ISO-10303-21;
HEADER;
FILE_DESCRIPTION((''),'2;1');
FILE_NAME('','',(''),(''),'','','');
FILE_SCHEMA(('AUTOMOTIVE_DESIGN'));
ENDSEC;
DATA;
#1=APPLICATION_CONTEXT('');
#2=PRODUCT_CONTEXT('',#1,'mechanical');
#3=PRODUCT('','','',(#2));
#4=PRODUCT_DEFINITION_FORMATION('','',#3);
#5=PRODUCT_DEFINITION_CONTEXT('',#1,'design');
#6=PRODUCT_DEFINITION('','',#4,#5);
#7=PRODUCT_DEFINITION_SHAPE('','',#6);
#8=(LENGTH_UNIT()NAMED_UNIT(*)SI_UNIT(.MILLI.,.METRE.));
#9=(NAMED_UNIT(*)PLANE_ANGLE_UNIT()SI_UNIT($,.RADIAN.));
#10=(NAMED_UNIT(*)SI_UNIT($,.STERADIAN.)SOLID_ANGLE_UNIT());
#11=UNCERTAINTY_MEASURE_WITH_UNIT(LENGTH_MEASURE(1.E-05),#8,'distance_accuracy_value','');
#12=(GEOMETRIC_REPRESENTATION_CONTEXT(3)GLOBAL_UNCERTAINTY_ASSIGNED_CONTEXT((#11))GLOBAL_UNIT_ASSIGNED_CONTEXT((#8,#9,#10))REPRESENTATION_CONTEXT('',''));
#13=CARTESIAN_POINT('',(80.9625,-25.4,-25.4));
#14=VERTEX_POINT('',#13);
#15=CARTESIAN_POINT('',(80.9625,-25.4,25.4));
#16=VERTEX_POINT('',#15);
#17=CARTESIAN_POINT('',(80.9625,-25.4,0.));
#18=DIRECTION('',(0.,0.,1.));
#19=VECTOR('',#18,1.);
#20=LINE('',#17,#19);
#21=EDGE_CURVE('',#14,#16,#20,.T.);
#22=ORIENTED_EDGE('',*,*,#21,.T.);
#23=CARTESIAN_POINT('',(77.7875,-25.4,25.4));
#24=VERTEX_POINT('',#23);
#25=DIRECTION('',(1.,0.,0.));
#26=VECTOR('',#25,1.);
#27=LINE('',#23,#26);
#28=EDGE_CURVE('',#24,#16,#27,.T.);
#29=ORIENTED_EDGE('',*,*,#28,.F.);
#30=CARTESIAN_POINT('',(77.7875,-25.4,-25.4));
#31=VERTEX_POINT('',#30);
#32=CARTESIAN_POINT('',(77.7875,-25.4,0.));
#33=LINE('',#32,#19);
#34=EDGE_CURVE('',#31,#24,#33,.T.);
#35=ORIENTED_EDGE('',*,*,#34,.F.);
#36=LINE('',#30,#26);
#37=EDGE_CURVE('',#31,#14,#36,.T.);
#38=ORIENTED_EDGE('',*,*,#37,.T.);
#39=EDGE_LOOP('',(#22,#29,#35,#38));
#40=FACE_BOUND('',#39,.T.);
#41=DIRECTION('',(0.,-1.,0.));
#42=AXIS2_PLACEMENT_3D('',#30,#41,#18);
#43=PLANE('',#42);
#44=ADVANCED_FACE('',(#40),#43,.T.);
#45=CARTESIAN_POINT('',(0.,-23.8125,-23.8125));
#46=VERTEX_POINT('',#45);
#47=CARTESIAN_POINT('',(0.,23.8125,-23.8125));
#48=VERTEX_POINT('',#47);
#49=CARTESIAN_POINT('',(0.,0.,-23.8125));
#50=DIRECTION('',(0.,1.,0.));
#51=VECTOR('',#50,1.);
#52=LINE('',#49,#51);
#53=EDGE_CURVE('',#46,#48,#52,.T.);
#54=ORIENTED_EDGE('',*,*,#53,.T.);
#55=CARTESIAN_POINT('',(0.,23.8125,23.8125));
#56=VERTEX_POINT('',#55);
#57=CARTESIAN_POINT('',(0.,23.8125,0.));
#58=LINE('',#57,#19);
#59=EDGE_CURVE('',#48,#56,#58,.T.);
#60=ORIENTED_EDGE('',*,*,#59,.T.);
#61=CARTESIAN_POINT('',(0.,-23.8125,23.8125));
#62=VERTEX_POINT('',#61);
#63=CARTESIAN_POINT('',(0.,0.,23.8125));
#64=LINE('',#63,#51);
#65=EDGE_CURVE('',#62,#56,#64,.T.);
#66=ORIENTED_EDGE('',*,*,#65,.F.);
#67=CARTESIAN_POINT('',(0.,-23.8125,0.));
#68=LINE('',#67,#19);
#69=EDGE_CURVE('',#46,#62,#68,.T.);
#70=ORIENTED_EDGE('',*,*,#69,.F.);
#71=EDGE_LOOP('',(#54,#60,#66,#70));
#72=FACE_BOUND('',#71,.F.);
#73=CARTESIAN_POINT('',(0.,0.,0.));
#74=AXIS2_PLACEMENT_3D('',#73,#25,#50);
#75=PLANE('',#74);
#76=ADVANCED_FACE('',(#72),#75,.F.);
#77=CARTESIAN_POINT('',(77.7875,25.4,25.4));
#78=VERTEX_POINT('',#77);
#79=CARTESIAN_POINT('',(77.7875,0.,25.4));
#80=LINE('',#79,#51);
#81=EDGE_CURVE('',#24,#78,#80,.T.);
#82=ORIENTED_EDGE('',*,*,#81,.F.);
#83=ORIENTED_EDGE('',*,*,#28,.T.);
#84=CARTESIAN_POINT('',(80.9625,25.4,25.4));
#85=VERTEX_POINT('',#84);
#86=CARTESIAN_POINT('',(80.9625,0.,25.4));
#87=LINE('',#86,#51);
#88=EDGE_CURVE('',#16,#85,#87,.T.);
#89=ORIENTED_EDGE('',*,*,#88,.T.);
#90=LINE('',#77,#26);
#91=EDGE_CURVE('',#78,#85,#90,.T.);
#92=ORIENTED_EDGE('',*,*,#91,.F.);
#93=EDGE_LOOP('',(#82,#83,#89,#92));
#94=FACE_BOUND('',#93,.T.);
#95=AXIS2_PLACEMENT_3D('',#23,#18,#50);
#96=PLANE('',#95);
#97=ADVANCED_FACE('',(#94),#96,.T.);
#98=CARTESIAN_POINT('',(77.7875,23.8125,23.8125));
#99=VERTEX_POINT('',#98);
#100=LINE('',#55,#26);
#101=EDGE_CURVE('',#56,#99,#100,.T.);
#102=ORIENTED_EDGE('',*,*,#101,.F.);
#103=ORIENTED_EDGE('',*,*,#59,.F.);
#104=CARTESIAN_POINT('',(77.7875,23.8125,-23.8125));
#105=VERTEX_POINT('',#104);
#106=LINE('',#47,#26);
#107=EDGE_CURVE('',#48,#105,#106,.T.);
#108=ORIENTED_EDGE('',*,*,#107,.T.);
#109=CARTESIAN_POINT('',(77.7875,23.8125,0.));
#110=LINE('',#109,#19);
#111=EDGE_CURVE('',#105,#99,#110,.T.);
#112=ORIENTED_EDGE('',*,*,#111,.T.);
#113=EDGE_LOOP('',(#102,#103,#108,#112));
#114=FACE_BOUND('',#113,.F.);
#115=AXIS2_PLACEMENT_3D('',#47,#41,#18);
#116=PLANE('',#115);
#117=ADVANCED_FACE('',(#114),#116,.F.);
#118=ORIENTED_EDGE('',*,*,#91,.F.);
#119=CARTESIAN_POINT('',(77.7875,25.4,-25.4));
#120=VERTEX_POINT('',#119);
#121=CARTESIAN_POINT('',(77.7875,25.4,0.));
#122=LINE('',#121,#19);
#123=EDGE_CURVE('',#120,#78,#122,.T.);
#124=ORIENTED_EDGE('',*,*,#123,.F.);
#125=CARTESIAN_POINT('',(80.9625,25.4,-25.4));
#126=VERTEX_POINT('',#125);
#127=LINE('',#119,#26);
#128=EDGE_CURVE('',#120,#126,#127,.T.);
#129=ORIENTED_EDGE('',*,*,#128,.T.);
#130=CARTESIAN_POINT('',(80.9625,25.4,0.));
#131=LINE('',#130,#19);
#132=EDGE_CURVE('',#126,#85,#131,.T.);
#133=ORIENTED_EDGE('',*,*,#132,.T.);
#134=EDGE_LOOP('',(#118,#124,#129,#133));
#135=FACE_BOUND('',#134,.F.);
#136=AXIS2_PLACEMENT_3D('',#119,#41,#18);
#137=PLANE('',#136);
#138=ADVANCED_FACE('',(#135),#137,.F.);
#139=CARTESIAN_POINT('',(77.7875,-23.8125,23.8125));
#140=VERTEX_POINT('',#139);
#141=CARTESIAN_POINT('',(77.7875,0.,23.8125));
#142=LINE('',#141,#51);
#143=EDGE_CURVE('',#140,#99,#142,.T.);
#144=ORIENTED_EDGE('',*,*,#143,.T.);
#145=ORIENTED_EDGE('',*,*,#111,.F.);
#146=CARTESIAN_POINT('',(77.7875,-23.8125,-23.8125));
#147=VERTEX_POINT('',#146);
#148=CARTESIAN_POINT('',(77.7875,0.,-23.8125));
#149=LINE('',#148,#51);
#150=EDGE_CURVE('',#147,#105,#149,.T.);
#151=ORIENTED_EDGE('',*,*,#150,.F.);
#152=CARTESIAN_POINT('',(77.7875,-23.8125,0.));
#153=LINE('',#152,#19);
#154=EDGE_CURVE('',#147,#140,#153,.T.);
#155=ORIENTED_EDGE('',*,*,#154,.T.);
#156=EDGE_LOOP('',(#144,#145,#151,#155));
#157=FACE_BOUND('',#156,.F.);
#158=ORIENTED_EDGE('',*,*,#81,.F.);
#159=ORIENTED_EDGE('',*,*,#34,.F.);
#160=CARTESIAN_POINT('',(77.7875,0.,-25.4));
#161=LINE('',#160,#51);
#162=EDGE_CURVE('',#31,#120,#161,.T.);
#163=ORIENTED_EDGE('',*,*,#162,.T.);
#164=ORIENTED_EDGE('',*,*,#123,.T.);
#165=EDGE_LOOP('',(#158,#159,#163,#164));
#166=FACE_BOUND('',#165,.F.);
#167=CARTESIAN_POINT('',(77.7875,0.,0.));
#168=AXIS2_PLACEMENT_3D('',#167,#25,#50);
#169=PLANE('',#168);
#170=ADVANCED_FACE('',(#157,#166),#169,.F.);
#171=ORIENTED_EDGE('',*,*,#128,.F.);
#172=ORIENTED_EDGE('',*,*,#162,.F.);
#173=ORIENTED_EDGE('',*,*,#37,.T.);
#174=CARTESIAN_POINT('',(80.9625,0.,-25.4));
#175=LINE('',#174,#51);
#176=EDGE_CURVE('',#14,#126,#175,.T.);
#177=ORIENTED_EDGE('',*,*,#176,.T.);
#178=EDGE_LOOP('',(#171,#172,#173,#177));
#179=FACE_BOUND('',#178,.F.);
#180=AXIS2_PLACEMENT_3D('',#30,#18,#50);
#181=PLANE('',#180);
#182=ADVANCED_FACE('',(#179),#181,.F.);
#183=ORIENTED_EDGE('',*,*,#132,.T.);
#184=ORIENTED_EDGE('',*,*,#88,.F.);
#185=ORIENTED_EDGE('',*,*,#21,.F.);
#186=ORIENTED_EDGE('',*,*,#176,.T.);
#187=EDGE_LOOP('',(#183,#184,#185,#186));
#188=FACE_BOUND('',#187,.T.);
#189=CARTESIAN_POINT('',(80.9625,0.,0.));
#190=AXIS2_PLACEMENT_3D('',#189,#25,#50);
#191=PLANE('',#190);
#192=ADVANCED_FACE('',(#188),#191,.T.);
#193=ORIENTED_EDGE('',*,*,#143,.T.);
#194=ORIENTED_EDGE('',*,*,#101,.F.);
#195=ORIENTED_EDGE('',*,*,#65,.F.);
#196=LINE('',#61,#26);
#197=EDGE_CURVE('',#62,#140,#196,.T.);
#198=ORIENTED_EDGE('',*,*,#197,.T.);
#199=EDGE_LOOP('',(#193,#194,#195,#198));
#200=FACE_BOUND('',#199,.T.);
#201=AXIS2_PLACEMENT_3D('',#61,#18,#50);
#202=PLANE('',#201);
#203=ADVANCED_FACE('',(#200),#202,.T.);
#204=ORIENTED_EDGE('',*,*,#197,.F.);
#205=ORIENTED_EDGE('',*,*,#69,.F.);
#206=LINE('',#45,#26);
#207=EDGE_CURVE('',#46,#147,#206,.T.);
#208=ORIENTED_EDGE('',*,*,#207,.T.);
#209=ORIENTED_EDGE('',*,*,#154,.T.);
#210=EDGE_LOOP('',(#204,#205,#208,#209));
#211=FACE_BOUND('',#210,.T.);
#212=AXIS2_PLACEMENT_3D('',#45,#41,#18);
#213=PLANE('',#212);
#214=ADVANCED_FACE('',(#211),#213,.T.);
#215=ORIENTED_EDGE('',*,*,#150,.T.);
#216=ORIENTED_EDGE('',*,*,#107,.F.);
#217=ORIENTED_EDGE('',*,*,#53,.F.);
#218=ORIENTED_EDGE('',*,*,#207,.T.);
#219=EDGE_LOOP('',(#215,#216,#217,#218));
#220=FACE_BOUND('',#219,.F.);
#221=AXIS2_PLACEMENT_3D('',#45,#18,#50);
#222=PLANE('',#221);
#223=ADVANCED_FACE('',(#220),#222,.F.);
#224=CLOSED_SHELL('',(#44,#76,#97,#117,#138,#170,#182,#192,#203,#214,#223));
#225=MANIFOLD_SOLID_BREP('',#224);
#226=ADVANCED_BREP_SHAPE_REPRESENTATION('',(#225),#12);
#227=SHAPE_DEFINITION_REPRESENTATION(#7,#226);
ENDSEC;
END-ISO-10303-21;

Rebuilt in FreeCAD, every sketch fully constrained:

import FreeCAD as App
import Part
import Sketcher
from FreeCAD import Vector
Q = App.Units.Quantity


def add_polygon(sketch, points):
    """Adds a closed chain of lines whose ends are joined by coincident constraints."""
    first, n = sketch.GeometryCount, len(points)
    for a, b in zip(points, points[1:] + points[:1]):
        sketch.addGeometry(Part.LineSegment(App.Vector(*a, 0), App.Vector(*b, 0)), False)
    for i in range(n):
        sketch.addConstraint(Sketcher.Constraint("Coincident", first + i, 2, first + (i + 1) % n, 1))

doc = App.newDocument("Part")
body = doc.addObject("PartDesign::Body", "Body")

sketch1 = doc.addObject("Sketcher::SketchObject", "Sketch")
body.addObject(sketch1)
sketch1.AttachmentSupport = (doc.YZ_Plane, [""])
sketch1.MapMode = "FlatFace"
add_polygon(sketch1, [(-24, 24), (-24, -24), (24, -24), (24, 24)])
sketch1.addConstraint([
    Sketcher.Constraint("Vertical", 0),
    Sketcher.Constraint("Horizontal", 1),
    Sketcher.Constraint("Vertical", 2),
    Sketcher.Constraint("Horizontal", 3),
    Sketcher.Constraint("Symmetric", 0, 2, 2, 2, -1, 1),
    Sketcher.Constraint("Equal", 3, 0),
    Sketcher.Constraint("DistanceX", 1, 1, 1, 2, Q("1.875 in")),
])
pad1 = doc.addObject("PartDesign::Pad", "Pad")
body.addObject(pad1)
pad1.Profile = sketch1
pad1.Length = Q("3.0625 in")

sketch2 = doc.addObject("Sketcher::SketchObject", "Sketch001")
body.addObject(sketch2)
sketch2.AttachmentSupport = (doc.YZ_Plane, [""])
sketch2.MapMode = "FlatFace"
sketch2.AttachmentOffset = App.Placement(Vector(0, 0, 3.0625 * 25.4), App.Rotation())
add_polygon(sketch2, [(-25, 25), (-25, -25), (25, -25), (25, 25)])
sketch2.addConstraint([
    Sketcher.Constraint("Vertical", 0),
    Sketcher.Constraint("Horizontal", 1),
    Sketcher.Constraint("Vertical", 2),
    Sketcher.Constraint("Horizontal", 3),
    Sketcher.Constraint("Symmetric", 0, 2, 2, 2, -1, 1),
    Sketcher.Constraint("Equal", 3, 0),
    Sketcher.Constraint("DistanceX", 1, 1, 1, 2, Q("2 in")),
])
pad2 = doc.addObject("PartDesign::Pad", "Pad001")
body.addObject(pad2)
pad2.Profile = sketch2
pad2.Length = Q("0.125 in")

doc.recompute()
